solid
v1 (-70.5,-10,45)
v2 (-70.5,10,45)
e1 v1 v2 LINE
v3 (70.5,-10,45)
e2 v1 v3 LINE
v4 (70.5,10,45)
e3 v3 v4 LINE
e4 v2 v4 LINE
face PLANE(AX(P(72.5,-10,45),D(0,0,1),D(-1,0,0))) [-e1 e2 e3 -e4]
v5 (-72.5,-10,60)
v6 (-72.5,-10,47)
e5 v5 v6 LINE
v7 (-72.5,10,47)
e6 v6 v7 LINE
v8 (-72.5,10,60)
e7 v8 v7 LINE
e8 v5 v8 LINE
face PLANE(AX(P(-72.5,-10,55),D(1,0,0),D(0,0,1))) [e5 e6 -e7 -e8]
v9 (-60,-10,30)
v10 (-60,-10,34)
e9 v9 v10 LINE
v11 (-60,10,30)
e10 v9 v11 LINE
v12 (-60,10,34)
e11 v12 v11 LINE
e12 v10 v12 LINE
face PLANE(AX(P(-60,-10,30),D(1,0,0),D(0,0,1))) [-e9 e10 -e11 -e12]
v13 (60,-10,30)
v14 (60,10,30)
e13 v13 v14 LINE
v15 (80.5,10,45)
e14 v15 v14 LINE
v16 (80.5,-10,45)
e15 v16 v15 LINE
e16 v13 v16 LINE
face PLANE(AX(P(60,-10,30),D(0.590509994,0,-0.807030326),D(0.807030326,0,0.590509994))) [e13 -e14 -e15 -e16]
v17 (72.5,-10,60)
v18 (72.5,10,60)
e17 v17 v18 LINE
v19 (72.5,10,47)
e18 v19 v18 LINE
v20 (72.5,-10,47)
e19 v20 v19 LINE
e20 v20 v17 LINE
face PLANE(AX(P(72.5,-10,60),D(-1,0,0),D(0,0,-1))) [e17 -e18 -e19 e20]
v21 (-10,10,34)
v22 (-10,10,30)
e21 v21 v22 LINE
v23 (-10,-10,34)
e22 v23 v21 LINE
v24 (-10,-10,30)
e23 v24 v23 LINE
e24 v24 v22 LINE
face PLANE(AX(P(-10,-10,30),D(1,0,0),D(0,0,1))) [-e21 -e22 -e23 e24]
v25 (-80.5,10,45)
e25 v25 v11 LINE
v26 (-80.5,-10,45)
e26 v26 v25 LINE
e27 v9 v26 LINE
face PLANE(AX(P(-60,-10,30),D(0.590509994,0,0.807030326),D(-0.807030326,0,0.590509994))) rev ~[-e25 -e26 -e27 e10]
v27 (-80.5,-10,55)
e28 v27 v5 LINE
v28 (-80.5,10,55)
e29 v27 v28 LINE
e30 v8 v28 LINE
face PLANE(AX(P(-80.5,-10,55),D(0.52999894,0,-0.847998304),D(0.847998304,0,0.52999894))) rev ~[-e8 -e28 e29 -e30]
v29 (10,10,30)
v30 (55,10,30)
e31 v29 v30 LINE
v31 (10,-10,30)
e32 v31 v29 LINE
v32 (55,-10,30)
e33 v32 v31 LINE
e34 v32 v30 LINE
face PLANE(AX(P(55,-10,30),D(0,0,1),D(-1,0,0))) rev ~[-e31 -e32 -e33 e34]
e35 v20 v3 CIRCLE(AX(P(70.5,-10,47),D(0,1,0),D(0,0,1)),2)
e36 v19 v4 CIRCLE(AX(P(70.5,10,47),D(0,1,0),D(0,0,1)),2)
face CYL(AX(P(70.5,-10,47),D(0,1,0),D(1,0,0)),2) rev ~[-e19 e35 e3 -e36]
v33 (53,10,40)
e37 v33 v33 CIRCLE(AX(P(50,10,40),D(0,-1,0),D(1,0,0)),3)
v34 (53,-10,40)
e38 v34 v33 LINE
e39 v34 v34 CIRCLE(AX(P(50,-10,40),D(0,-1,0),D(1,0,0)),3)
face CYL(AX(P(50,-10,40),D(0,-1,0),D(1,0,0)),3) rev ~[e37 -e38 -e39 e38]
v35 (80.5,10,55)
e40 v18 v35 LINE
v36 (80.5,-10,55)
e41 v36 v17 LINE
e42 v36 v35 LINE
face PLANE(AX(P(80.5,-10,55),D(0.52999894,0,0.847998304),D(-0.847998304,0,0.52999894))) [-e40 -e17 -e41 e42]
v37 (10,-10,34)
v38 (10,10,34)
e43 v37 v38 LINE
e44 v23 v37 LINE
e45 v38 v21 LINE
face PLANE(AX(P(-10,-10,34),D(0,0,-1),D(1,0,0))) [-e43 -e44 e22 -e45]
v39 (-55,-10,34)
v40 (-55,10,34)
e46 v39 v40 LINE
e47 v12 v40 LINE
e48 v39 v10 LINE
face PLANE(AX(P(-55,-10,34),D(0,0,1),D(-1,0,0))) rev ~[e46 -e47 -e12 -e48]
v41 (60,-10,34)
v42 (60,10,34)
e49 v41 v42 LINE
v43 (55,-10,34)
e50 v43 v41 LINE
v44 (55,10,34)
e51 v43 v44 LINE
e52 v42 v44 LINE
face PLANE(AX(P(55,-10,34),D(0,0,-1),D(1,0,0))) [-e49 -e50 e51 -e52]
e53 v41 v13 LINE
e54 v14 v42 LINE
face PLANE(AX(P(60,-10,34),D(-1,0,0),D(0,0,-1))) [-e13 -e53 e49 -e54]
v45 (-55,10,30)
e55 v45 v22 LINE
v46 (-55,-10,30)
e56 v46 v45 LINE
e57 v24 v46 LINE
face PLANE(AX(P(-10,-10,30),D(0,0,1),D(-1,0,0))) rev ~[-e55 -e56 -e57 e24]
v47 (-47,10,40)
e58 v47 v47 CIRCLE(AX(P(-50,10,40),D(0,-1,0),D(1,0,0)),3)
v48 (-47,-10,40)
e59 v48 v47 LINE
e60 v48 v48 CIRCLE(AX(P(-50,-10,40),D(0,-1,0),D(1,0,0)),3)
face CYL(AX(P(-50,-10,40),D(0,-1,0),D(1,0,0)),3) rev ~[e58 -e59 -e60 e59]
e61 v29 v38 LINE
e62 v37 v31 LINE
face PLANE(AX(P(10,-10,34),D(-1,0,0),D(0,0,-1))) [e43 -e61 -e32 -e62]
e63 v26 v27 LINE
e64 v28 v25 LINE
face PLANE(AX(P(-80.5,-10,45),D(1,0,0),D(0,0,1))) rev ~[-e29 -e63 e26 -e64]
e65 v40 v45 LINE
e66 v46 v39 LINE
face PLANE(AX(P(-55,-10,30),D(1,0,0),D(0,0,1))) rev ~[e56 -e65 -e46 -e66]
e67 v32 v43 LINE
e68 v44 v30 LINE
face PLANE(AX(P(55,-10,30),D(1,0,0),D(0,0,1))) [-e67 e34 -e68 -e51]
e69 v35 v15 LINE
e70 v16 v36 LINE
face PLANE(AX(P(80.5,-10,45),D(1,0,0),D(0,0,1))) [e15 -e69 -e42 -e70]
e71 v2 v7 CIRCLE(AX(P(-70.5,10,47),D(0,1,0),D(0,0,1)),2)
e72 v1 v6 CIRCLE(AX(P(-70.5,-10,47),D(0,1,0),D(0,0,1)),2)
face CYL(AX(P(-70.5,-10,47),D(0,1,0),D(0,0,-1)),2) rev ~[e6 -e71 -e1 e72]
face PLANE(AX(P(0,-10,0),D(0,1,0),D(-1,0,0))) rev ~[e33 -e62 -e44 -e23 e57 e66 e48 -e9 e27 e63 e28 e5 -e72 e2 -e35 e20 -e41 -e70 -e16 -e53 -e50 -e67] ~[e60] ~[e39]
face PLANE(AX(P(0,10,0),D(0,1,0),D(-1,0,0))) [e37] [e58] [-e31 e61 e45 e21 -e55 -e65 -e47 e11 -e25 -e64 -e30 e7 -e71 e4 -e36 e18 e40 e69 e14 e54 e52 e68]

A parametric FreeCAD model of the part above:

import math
import FreeCAD as App
import Part
import Sketcher

V = App.Vector


def edges_at(feature, points):
    """Names of the edges that pass closest to the given points."""
    edges = feature.Shape.Edges
    near = lambda p: min(range(len(edges)), key=lambda i: edges[i].distToShape(Part.Vertex(*p))[0])
    return sorted({f"Edge{near(p) + 1}" for p in points})

doc = App.newDocument("Part")
params = doc.addObject("Spreadsheet::Sheet", "Params")
for row, (alias, value) in enumerate([
    ("sketch1_radius", "95 mm"),
    ("sketch1_width", "150 mm"),
    ("pad1_length", "20 mm"),
    ("sketch2_diameter", "6 mm"),
    ("sketch3_width", "145 mm"),
    ("sketch3_width2", "5 mm"),
    ("sketch3_width3", "20 mm"),
    ("sketch3_height", "15 mm"),
    ("sketch3_height2", "10 mm"),
    ("fillet_radius", "2 mm"),
], start=1):
    params.set(f"A{row}", alias)
    params.set(f"B{row}", "=" + value)
    params.setAlias(f"B{row}", alias)

body = doc.addObject("PartDesign::Body", "Body")

sketch1 = doc.addObject("Sketcher::SketchObject", "Sketch")
body.addObject(sketch1)
sketch1.AttachmentSupport = (doc.XZ_Plane, [""])
sketch1.MapMode = "FlatFace"
sketch1.addGeometry([
    Part.LineSegment(V(-75, 81, 0), V(75, 81, 0)),
    Part.ArcOfCircle(Part.Circle(V(25, 0, 0), V(0, 0, 1), 95), math.radians(-58), math.radians(58)),
    Part.LineSegment(V(75, -81, 0), V(-75, -81, 0)),
    Part.ArcOfCircle(Part.Circle(V(-25, 0, 0), V(0, 0, 1), 95), math.radians(122), math.radians(238)),
], False)
sketch1.addConstraint([
    Sketcher.Constraint("Coincident", 0, 2, 1, 2),
    Sketcher.Constraint("Coincident", 1, 1, 2, 1),
    Sketcher.Constraint("Coincident", 2, 2, 3, 2),
    Sketcher.Constraint("Coincident", 3, 1, 0, 1),
    Sketcher.Constraint("Horizontal", 0),
    Sketcher.Constraint("Horizontal", 2),
    Sketcher.Constraint("Equal", 1, 3),
    Sketcher.Constraint("Symmetric", 1, 3, 3, 3, -1, 1),
    Sketcher.Constraint("Symmetric", 0, 2, 1, 1, -1),
    Sketcher.Constraint("Radius", 1, 95.0),
    Sketcher.Constraint("DistanceX", 0, 1, 0, 2, 150.0),
    Sketcher.Constraint("DistanceX", 3, 3, 1, 3, 50.0),
])
sketch1.setExpression("Constraints[9]", "Params.sketch1_radius")
sketch1.setExpression("Constraints[10]", "Params.sketch1_width")
pad1 = doc.addObject("PartDesign::Pad", "Pad")
body.addObject(pad1)
pad1.Profile = sketch1
pad1.setExpression("Length", "Params.pad1_length")
pad1.Midplane = True

sketch2 = doc.addObject("Sketcher::SketchObject", "Sketch001")
body.addObject(sketch2)
sketch2.AttachmentSupport = (doc.XZ_Plane, [""])
sketch2.MapMode = "FlatFace"
sketch2.AttachmentOffset = App.Placement(V(0, 0, 10), App.Rotation())
sketch2.addGeometry([
    Part.Circle(V(-50, 40, 0), V(0, 0, 1), 3),
    Part.Circle(V(50, 40, 0), V(0, 0, 1), 3),
    Part.Circle(V(50, -40, 0), V(0, 0, 1), 3),
    Part.Circle(V(-50, -40, 0), V(0, 0, 1), 3),
], False)
sketch2.addConstraint([
    Sketcher.Constraint("Equal", 0, 1),
    Sketcher.Constraint("Equal", 1, 2),
    Sketcher.Constraint("Equal", 2, 3),
    Sketcher.Constraint("Symmetric", 0, 3, 2, 3, -1, 1),
    Sketcher.Constraint("Symmetric", 1, 3, 3, 3, -1, 1),
    Sketcher.Constraint("Symmetric", 0, 3, 1, 3, -2),
    Sketcher.Constraint("Diameter", 0, 6.0),
    Sketcher.Constraint("DistanceX", 0, 3, -1, 1, 50.0),
    Sketcher.Constraint("DistanceY", -1, 1, 0, 3, 40.0),
])
sketch2.setExpression("Constraints[6]", "Params.sketch2_diameter")
pocket1 = doc.addObject("PartDesign::Pocket", "Pocket")
body.addObject(pocket1)
pocket1.Profile = sketch2
pocket1.Type = "ThroughAll"

sketch3 = doc.addObject("Sketcher::SketchObject", "Sketch002")
body.addObject(sketch3)
sketch3.AttachmentSupport = (doc.XZ_Plane, [""])
sketch3.MapMode = "FlatFace"
sketch3.AttachmentOffset = App.Placement(V(0, 0, 10), App.Rotation())
sketch3.addGeometry([
    Part.ArcOfCircle(Part.Circle(V(25, 0, 0), V(0, 0, 1), 95), math.radians(-58), math.radians(58)),
    Part.LineSegment(V(75, 80.8, 0), V(-75, 80.8, 0)),
    Part.ArcOfCircle(Part.Circle(V(-25, 0, 0), V(0, 0, 1), 95), math.radians(122), math.radians(238)),
    Part.LineSegment(V(-75, -80.8, 0), V(75, -80.8, 0)),
    Part.Circle(V(-50, -40, 0), V(0, 0, 1), 3),
    Part.Circle(V(50, -40, 0), V(0, 0, 1), 3),
    Part.LineSegment(V(-80.5, 55, 0), V(-72.5, 60, 0)),
    Part.LineSegment(V(-72.5, 60, 0), V(-72.5, 45, 0)),
    Part.LineSegment(V(-72.5, 45, 0), V(72.5, 45, 0)),
    Part.LineSegment(V(72.5, 45, 0), V(72.5, 60, 0)),
    Part.LineSegment(V(72.5, 60, 0), V(80.5, 55, 0)),
    Part.LineSegment(V(80.5, 55, 0), V(80.5, 45, 0)),
    Part.LineSegment(V(80.5, 45, 0), V(60, 30, 0)),
    Part.LineSegment(V(60, 30, 0), V(60, 34, 0)),
    Part.LineSegment(V(60, 34, 0), V(55, 34, 0)),
    Part.LineSegment(V(55, 34, 0), V(55, 30, 0)),
    Part.LineSegment(V(55, 30, 0), V(10, 30, 0)),
    Part.LineSegment(V(10, 30, 0), V(10, 34, 0)),
    Part.LineSegment(V(10, 34, 0), V(-10, 34, 0)),
    Part.LineSegment(V(-10, 34, 0), V(-10, 30, 0)),
    Part.LineSegment(V(-10, 30, 0), V(-55, 30, 0)),
    Part.LineSegment(V(-55, 30, 0), V(-55, 34, 0)),
    Part.LineSegment(V(-55, 34, 0), V(-60, 34, 0)),
    Part.LineSegment(V(-60, 34, 0), V(-60, 30, 0)),
    Part.LineSegment(V(-60, 30, 0), V(-80.5, 45, 0)),
    Part.LineSegment(V(-80.5, 45, 0), V(-80.5, 55, 0)),
], False)
sketch3.addConstraint([
    Sketcher.Constraint("Coincident", 0, 2, 1, 1),
    Sketcher.Constraint("Coincident", 1, 2, 2, 1),
    Sketcher.Constraint("Coincident", 2, 2, 3, 1),
    Sketcher.Constraint("Coincident", 3, 2, 0, 1),
    Sketcher.Constraint("Coincident", 6, 2, 7, 1),
    Sketcher.Constraint("Coincident", 7, 2, 8, 1),
    Sketcher.Constraint("Coincident", 8, 2, 9, 1),
    Sketcher.Constraint("Coincident", 9, 2, 10, 1),
    Sketcher.Constraint("Coincident", 10, 2, 11, 1),
    Sketcher.Constraint("Coincident", 11, 2, 12, 1),
    Sketcher.Constraint("Coincident", 12, 2, 13, 1),
    Sketcher.Constraint("Coincident", 13, 2, 14, 1),
    Sketcher.Constraint("Coincident", 14, 2, 15, 1),
    Sketcher.Constraint("Coincident", 15, 2, 16, 1),
    Sketcher.Constraint("Coincident", 16, 2, 17, 1),
    Sketcher.Constraint("Coincident", 17, 2, 18, 1),
    Sketcher.Constraint("Coincident", 18, 2, 19, 1),
    Sketcher.Constraint("Coincident", 19, 2, 20, 1),
    Sketcher.Constraint("Coincident", 20, 2, 21, 1),
    Sketcher.Constraint("Coincident", 21, 2, 22, 1),
    Sketcher.Constraint("Coincident", 22, 2, 23, 1),
    Sketcher.Constraint("Coincident", 23, 2, 24, 1),
    Sketcher.Constraint("Coincident", 24, 2, 25, 1),
    Sketcher.Constraint("Coincident", 25, 2, 6, 1),
    Sketcher.Constraint("Horizontal", 1),
    Sketcher.Constraint("Horizontal", 3),
    Sketcher.Constraint("Vertical", 7),
    Sketcher.Constraint("Horizontal", 8),
    Sketcher.Constraint("Vertical", 9),
    Sketcher.Constraint("Vertical", 11),
    Sketcher.Constraint("Vertical", 13),
    Sketcher.Constraint("Horizontal", 14),
    Sketcher.Constraint("Vertical", 15),
    Sketcher.Constraint("Horizontal", 16),
    Sketcher.Constraint("Vertical", 17),
    Sketcher.Constraint("Horizontal", 18),
    Sketcher.Constraint("Vertical", 19),
    Sketcher.Constraint("Horizontal", 20),
    Sketcher.Constraint("Vertical", 21),
    Sketcher.Constraint("Horizontal", 22),
    Sketcher.Constraint("Vertical", 23),
    Sketcher.Constraint("Vertical", 25),
    Sketcher.Constraint("Equal", 0, 2),
    Sketcher.Constraint("Equal", 4, 5),
    Sketcher.Constraint("Symmetric", 0, 3, 2, 3, -1, 1),
    Sketcher.Constraint("Symmetric", 4, 3, 5, 3, -2),
    Sketcher.Constraint("Symmetric", 6, 2, 9, 2, -2),
    Sketcher.Constraint("Symmetric", 16, 2, 19, 2, -2),
    Sketcher.Constraint("Symmetric", 14, 2, 21, 2, -2),
    Sketcher.Constraint("Symmetric", 12, 2, 23, 2, -2),
    Sketcher.Constraint("Symmetric", 11, 2, 24, 2, -2),
    Sketcher.Constraint("Symmetric", 1, 2, 2, 2, -1),
    Sketcher.Constraint("Horizontal", 8, 2, 11, 2),
    Sketcher.Constraint("Horizontal", 12, 2, 15, 2),
    Sketcher.Constraint("Horizontal", 14, 2, 17, 2),
    Sketcher.Constraint("Horizontal", 10, 2, 25, 2),
    Sketcher.Constraint("DistanceX", 8, 1, 8, 2, 145.0),
    Sketcher.Constraint("DistanceX", 14, 2, 14, 1, 5.0),
    Sketcher.Constraint("DistanceX", 18, 2, 18, 1, 20.0),
    Sketcher.Constraint("DistanceY", 7, 2, 7, 1, 15.0),
    Sketcher.Constraint("DistanceY", 11, 2, 11, 1, 10.0),
    Sketcher.Constraint("DistanceY", 13, 1, 13, 2, 4.0),
    Sketcher.Constraint("Diameter", 4, 6.0),
    Sketcher.Constraint("Radius", 0, 95.0),
    Sketcher.Constraint("DistanceX", 9, 2, 10, 2, 8.0),
    Sketcher.Constraint("DistanceY", 12, 2, 8, 2, 15.0),
    Sketcher.Constraint("DistanceX", 16, 2, 0, 3, 15.0),
    Sketcher.Constraint("DistanceX", 1, 2, 1, 1, 150.0),
    Sketcher.Constraint("DistanceX", 16, 2, 16, 1, 45.0),
    Sketcher.Constraint("DistanceX", 4, 3, -1, 1, 50.0),
    Sketcher.Constraint("DistanceY", 4, 3, -1, 1, 40.0),
    Sketcher.Constraint("DistanceY", -1, 1, 6, 2, 60.0),
])
sketch3.setExpression("Constraints[56]", "Params.sketch3_width")
sketch3.setExpression("Constraints[57]", "Params.sketch3_width2")
sketch3.setExpression("Constraints[58]", "Params.sketch3_width3")
sketch3.setExpression("Constraints[59]", "Params.sketch3_height")
sketch3.setExpression("Constraints[60]", "Params.sketch3_height2")
pocket2 = doc.addObject("PartDesign::Pocket", "Pocket001")
body.addObject(pocket2)
pocket2.Profile = sketch3
pocket2.Type = "ThroughAll"
doc.recompute()

fillet = doc.addObject("PartDesign::Fillet", "Fillet")
body.addObject(fillet)
fillet.Base = (pocket2, edges_at(pocket2, [(72.5, 0, 45), (-72.5, 0, 45)]))
fillet.setExpression("Radius", "Params.fillet_radius")

doc.recompute()
